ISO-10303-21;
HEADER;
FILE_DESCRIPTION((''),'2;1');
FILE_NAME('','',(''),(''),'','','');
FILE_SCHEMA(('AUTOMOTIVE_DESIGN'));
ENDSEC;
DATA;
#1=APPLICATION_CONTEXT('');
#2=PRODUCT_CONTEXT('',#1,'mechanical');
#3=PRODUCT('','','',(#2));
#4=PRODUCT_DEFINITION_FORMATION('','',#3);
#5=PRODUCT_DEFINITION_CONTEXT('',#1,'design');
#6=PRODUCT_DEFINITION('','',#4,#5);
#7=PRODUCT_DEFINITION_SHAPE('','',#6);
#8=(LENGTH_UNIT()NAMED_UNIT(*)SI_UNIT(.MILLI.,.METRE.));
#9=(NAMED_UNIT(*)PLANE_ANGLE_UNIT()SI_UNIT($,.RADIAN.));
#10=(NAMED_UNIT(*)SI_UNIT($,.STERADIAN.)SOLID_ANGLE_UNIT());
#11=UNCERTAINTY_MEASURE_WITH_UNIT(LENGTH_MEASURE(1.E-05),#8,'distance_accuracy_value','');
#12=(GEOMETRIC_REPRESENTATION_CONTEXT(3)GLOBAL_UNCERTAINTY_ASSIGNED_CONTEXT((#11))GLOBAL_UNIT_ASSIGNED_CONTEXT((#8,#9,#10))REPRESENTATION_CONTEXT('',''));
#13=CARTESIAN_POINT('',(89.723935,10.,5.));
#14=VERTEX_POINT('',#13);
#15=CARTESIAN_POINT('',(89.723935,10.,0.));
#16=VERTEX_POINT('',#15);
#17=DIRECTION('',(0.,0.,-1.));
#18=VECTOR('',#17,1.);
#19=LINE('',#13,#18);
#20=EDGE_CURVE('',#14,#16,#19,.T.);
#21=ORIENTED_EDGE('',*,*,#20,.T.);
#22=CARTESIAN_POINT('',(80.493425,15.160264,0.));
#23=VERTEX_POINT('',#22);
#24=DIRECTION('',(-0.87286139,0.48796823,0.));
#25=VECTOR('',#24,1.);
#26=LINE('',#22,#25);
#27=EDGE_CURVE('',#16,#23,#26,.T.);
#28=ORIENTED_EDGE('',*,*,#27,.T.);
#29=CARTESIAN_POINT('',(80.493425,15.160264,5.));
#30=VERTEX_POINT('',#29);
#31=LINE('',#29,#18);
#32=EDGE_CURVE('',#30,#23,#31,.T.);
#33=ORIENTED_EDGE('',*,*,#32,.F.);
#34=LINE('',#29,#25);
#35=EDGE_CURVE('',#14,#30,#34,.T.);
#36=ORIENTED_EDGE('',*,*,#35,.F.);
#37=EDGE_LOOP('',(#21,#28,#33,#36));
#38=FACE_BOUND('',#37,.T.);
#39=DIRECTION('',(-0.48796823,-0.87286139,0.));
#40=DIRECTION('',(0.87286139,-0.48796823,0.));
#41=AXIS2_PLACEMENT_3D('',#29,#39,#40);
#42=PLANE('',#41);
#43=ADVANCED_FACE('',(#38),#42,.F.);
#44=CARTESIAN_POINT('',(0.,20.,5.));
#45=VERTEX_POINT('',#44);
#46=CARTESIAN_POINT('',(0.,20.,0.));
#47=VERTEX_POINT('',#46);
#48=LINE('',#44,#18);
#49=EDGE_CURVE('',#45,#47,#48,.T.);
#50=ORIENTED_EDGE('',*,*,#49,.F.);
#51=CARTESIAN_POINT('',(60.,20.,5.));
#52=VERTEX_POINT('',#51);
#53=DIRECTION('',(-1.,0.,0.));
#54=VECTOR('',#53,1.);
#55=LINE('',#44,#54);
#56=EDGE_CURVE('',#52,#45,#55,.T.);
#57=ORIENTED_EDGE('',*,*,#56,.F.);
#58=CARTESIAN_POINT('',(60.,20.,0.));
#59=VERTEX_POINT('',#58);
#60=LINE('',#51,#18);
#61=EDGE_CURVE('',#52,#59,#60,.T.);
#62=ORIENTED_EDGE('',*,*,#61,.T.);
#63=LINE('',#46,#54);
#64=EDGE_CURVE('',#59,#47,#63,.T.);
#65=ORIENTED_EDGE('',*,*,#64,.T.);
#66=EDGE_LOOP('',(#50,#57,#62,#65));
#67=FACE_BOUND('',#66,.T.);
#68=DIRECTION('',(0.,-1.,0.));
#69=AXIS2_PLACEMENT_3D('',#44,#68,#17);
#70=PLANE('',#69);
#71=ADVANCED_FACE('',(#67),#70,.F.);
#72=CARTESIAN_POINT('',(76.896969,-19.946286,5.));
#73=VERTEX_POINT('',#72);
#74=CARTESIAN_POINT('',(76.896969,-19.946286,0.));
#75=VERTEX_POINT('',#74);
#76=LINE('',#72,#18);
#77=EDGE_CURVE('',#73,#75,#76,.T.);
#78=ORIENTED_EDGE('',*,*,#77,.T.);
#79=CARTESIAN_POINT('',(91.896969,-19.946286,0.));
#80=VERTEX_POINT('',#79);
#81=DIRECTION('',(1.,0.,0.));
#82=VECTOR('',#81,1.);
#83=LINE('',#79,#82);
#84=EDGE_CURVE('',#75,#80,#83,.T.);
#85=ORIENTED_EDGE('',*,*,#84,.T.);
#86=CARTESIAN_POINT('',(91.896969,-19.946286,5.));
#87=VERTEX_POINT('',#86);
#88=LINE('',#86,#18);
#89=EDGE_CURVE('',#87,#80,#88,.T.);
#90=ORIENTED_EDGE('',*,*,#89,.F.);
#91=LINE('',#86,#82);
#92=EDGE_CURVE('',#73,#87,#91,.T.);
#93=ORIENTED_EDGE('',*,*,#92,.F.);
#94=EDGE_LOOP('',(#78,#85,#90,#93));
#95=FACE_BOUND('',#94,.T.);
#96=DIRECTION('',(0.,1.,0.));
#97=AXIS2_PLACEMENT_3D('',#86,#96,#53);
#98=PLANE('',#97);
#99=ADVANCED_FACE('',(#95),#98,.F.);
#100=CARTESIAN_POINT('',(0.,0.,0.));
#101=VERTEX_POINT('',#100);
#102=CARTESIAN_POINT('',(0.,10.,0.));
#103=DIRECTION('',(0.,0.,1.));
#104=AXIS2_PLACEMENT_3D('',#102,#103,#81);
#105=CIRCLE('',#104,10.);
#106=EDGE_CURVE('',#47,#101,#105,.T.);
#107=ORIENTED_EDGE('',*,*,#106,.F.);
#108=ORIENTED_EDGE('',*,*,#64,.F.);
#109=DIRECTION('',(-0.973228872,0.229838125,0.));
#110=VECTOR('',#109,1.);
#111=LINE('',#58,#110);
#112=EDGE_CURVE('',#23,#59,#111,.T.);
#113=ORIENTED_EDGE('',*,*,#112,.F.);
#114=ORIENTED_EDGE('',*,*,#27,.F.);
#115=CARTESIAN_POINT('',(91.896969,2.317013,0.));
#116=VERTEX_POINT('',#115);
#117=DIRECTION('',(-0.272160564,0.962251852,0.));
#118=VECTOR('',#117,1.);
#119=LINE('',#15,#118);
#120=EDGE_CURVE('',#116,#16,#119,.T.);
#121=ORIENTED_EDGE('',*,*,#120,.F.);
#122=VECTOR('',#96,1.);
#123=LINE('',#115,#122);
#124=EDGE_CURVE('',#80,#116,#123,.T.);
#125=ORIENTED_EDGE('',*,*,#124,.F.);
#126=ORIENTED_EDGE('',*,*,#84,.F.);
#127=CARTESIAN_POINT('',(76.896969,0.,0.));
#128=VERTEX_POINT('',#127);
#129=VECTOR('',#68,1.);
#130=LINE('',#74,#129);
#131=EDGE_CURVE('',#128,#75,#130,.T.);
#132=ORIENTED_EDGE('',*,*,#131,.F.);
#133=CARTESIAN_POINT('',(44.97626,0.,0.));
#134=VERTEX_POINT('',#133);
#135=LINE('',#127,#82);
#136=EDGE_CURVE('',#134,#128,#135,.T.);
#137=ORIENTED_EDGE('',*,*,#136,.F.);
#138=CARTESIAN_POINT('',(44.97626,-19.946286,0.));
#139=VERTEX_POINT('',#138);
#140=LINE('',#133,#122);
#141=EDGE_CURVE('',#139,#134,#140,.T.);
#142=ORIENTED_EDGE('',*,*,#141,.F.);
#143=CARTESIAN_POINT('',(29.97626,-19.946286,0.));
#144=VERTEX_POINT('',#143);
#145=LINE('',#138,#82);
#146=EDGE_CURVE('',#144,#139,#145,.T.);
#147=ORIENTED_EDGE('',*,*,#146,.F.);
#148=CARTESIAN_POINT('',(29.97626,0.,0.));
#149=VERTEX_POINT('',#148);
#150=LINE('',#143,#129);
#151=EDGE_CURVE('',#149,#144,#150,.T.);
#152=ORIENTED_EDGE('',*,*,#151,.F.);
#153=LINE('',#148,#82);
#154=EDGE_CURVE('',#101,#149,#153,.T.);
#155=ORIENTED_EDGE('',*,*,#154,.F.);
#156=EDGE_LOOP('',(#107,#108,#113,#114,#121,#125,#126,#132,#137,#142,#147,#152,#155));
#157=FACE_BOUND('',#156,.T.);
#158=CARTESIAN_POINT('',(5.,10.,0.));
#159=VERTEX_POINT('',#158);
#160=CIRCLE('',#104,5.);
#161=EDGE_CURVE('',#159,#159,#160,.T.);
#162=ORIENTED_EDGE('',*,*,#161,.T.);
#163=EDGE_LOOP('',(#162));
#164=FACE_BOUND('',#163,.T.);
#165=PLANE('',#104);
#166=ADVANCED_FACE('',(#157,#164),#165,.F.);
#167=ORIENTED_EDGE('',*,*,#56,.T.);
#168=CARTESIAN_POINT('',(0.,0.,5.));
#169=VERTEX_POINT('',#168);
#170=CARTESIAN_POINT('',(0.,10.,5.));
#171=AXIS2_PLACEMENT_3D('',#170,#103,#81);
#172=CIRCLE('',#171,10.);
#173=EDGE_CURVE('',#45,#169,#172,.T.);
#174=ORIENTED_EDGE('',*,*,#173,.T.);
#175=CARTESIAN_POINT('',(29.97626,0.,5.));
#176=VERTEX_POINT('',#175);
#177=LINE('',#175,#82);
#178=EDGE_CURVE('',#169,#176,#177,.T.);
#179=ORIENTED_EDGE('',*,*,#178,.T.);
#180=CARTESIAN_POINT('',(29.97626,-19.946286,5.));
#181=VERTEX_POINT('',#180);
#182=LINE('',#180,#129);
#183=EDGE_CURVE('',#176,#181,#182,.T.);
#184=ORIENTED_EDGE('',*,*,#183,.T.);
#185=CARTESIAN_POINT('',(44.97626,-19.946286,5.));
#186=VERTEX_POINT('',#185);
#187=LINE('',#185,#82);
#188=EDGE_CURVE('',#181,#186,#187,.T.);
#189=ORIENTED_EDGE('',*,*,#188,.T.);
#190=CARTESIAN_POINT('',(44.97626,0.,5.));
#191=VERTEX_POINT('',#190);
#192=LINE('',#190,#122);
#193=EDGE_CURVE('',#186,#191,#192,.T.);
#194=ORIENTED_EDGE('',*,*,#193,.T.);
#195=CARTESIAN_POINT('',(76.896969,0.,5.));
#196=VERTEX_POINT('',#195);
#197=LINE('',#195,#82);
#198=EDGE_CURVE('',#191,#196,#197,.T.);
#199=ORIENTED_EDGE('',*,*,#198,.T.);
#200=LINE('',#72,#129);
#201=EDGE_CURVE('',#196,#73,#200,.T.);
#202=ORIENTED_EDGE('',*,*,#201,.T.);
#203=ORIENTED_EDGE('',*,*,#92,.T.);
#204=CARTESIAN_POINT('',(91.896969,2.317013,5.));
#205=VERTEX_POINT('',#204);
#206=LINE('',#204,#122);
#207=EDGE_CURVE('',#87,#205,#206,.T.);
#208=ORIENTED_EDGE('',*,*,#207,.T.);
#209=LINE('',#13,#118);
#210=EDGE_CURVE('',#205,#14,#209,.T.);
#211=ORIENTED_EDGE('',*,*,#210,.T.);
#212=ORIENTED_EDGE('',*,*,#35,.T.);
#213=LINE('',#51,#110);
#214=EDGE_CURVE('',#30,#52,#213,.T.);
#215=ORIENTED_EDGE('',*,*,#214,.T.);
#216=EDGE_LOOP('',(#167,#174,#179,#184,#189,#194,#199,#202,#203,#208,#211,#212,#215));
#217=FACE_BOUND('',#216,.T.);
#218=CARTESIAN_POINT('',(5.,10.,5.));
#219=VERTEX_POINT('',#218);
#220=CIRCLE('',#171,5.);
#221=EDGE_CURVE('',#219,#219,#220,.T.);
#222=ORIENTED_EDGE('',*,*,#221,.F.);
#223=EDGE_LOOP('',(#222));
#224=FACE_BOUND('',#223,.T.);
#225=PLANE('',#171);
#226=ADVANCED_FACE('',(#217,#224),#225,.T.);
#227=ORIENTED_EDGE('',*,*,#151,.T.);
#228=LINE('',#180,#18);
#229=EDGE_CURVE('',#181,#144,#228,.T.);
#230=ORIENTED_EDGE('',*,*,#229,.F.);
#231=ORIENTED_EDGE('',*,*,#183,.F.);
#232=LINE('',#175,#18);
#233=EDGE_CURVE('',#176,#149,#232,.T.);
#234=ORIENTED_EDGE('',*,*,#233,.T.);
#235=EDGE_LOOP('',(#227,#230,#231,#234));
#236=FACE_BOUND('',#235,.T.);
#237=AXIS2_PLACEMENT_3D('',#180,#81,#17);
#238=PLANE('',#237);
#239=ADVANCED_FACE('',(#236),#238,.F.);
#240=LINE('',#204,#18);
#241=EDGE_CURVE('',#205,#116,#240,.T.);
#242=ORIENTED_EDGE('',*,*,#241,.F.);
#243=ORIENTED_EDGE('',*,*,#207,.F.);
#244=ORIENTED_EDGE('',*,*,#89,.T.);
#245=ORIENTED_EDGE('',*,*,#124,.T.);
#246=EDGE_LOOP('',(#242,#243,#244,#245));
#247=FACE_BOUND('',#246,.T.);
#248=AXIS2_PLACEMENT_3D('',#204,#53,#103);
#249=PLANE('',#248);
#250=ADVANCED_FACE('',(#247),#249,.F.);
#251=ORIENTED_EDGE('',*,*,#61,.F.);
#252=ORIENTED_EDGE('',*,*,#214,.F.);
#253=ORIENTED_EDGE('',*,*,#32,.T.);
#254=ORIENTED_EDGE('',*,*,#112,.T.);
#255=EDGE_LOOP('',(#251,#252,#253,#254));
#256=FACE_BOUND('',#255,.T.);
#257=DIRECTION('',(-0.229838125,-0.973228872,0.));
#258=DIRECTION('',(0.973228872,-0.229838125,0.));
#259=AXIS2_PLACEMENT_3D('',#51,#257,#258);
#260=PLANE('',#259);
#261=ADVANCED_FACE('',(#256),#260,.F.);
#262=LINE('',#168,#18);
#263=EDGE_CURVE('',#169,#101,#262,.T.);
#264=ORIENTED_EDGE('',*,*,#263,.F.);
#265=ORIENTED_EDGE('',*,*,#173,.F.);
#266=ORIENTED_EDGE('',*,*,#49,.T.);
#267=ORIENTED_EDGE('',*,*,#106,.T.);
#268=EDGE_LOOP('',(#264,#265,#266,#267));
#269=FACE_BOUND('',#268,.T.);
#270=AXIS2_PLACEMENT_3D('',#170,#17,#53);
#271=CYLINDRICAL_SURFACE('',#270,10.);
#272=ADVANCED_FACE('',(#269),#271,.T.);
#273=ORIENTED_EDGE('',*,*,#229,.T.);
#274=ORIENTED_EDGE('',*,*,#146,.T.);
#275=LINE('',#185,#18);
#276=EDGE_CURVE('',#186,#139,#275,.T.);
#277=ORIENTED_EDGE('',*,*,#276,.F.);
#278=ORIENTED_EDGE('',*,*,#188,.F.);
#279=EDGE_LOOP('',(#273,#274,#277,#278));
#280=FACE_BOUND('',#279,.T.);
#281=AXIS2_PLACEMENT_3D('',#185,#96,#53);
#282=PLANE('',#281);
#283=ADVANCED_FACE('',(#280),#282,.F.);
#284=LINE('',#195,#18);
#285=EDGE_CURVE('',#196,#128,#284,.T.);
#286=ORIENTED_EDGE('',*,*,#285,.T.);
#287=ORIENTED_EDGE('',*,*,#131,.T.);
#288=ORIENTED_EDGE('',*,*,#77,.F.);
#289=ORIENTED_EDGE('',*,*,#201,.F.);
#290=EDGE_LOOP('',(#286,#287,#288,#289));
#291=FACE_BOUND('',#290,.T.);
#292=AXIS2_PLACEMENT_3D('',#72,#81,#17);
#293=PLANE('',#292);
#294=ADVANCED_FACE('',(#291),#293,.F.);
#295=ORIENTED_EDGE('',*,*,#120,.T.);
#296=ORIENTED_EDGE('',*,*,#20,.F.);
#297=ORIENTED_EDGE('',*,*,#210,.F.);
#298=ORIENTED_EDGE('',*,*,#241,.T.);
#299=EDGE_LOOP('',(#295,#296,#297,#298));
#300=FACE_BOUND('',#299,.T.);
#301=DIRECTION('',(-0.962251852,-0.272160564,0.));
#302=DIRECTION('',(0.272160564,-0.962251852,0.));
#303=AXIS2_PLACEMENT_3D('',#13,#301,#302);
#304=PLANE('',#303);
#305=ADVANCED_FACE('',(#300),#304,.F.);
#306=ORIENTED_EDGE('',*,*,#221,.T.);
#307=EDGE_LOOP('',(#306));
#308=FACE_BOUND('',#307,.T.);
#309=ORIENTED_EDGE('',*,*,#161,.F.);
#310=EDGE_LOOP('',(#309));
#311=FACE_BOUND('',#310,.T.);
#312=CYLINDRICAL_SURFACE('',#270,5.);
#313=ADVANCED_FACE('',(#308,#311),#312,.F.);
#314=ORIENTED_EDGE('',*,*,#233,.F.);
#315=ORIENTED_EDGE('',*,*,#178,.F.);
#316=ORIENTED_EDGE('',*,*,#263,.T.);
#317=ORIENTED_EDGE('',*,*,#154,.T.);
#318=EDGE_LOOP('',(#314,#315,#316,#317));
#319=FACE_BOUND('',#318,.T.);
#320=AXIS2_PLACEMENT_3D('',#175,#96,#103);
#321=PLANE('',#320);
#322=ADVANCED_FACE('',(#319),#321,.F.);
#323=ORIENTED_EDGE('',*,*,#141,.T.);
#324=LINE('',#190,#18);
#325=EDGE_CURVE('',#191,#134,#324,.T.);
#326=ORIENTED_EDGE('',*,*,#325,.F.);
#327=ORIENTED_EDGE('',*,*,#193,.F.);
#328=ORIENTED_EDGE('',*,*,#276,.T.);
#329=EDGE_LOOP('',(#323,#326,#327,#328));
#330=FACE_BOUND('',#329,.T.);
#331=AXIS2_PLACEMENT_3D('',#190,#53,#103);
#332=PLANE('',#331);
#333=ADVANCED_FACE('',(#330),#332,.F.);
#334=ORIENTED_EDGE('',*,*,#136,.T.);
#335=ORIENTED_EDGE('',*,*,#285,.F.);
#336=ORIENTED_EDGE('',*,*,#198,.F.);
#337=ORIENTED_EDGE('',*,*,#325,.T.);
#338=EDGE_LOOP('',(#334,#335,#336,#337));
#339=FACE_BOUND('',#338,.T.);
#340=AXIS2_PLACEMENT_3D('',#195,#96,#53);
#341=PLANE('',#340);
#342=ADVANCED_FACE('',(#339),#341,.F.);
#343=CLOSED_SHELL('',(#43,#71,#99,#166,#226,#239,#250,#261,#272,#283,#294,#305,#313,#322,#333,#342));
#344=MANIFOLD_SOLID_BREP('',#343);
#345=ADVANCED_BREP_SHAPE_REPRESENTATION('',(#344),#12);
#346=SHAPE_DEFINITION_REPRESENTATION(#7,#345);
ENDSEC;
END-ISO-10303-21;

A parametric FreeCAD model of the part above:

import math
import FreeCAD as App
import Part
import Sketcher
from FreeCAD import Vector

doc = App.newDocument("Part")
body = doc.addObject("PartDesign::Body", "Body")

# Sketch on XY plane
sketch1 = body.newObject("Sketcher::SketchObject", "Sketch")
sketch1.AttachmentSupport = (doc.getObject("XY_Plane"), [""])
sketch1.MapMode = "FlatFace"
sketch1.addGeometry([
    Part.LineSegment(Vector(60, 20, 0), Vector(0, 20, 0)),  # 0
    Part.ArcOfCircle(Part.Circle(Vector(0, 10, 0), Vector(0, 0, 1), 10), math.radians(90), math.radians(270)),  # 1
    Part.LineSegment(Vector(0, 0, 0), Vector(29.97626, 0, 0)),  # 2
    Part.LineSegment(Vector(29.97626, 0, 0), Vector(29.97626, -19.946286, 0)),  # 3
    Part.LineSegment(Vector(29.97626, -19.946286, 0), Vector(44.97626, -19.946286, 0)),  # 4
    Part.LineSegment(Vector(44.97626, -19.946286, 0), Vector(44.97626, 0, 0)),  # 5
    Part.LineSegment(Vector(44.97626, 0, 0), Vector(76.896969, 0, 0)),  # 6
    Part.LineSegment(Vector(76.896969, 0, 0), Vector(76.896969, -19.946286, 0)),  # 7
    Part.LineSegment(Vector(76.896969, -19.946286, 0), Vector(91.896969, -19.946286, 0)),  # 8
    Part.LineSegment(Vector(91.896969, -19.946286, 0), Vector(91.896969, 2.317013, 0)),  # 9
    Part.LineSegment(Vector(91.896969, 2.317013, 0), Vector(89.723935, 10, 0)),  # 10
    Part.LineSegment(Vector(89.723935, 10, 0), Vector(80.493425, 15.160264, 0)),  # 11
    Part.LineSegment(Vector(80.493425, 15.160264, 0), Vector(60, 20, 0)),  # 12
    Part.Circle(Vector(0, 10, 0), Vector(0, 0, 1), 5),  # 13
], False)
sketch1.addConstraint([
    Sketcher.Constraint("Tangent", 0, 2, 1, 1),
    Sketcher.Constraint("Tangent", 1, 2, 2, 1),
    Sketcher.Constraint("Coincident", 2, 2, 3, 1),
    Sketcher.Constraint("Coincident", 3, 2, 4, 1),
    Sketcher.Constraint("Coincident", 4, 2, 5, 1),
    Sketcher.Constraint("Coincident", 5, 2, 6, 1),
    Sketcher.Constraint("Coincident", 6, 2, 7, 1),
    Sketcher.Constraint("Coincident", 7, 2, 8, 1),
    Sketcher.Constraint("Coincident", 8, 2, 9, 1),
    Sketcher.Constraint("Coincident", 9, 2, 10, 1),
    Sketcher.Constraint("Coincident", 10, 2, 11, 1),
    Sketcher.Constraint("Coincident", 11, 2, 12, 1),
    Sketcher.Constraint("Coincident", 12, 2, 0, 1),
    Sketcher.Constraint("Horizontal", 0),
    Sketcher.Constraint("Horizontal", 2),
    Sketcher.Constraint("Vertical", 3),
    Sketcher.Constraint("Horizontal", 4),
    Sketcher.Constraint("Vertical", 5),
    Sketcher.Constraint("Horizontal", 6),
    Sketcher.Constraint("Vertical", 7),
    Sketcher.Constraint("Horizontal", 8),
    Sketcher.Constraint("Vertical", 9),
    Sketcher.Constraint("Coincident", 1, 2, -1, 1),
    Sketcher.Constraint("Coincident", 13, 3, 1, 3),
    Sketcher.Constraint("PointOnObject", 5, 2, -1),
    Sketcher.Constraint("Horizontal", 4, 2, 7, 2),
    Sketcher.Constraint("Horizontal", 13, 3, 10, 2),
    Sketcher.Constraint("Equal", 4, 8),
    Sketcher.Constraint("Diameter", 13, 10.0),
    Sketcher.Constraint("Radius", 1, 10.0),
    Sketcher.Constraint("DistanceX", 0, 2, 0, 1, 60.0),
    Sketcher.Constraint("DistanceX", 4, 1, 4, 2, 15.0),
    Sketcher.Constraint("Distance", 11, 10.575001),
    Sketcher.Constraint("DistanceY", 9, 1, 9, 2, 22.263299),
    Sketcher.Constraint("DistanceX", 2, 1, 2, 2, 29.97626),
    Sketcher.Constraint("DistanceX", 6, 1, 6, 2, 31.92071),
    Sketcher.Constraint("Distance", 12, 21.057149),
    Sketcher.Constraint("DistanceY", 3, 2, 3, 1, 19.946286),
    Sketcher.Constraint("DistanceX", 11, 2, 10, 2, 9.23051),
])
pad1 = body.newObject("PartDesign::Pad", "Pad")
pad1.Profile = sketch1
pad1.Length = 5

doc.recompute()
